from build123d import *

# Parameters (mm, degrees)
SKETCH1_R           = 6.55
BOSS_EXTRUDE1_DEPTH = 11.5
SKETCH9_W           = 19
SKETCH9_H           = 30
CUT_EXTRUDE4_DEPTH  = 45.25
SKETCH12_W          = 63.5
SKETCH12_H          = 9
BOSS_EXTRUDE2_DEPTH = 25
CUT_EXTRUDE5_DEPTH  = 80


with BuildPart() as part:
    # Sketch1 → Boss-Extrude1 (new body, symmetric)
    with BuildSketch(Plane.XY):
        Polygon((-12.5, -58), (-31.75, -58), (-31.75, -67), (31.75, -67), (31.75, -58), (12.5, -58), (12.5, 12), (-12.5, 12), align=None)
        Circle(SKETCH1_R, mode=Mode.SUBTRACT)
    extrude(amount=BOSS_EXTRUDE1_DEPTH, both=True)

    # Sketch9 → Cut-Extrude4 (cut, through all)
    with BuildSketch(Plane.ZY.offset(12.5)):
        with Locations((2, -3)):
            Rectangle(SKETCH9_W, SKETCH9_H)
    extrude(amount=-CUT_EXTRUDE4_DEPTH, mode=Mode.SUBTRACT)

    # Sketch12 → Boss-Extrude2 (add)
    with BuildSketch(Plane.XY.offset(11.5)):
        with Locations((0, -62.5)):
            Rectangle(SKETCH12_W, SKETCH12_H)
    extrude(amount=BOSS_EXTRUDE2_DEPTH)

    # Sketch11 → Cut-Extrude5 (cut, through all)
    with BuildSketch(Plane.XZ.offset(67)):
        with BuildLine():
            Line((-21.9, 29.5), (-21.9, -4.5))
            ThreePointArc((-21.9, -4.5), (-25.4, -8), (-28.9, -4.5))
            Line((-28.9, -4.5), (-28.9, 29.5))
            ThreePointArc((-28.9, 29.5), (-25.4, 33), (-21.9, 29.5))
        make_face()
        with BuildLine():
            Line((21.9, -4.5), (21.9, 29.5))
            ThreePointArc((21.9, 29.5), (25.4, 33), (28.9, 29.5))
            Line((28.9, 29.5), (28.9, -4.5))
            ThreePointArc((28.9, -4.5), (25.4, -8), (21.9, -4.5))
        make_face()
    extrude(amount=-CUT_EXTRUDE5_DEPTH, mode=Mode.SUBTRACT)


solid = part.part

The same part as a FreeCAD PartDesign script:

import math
import FreeCAD as App
import Part
import Sketcher

V = App.Vector

doc = App.newDocument("Part")
body = doc.addObject("PartDesign::Body", "Body")

sketch1 = body.newObject("Sketcher::SketchObject", "Sketch")
sketch1.AttachmentSupport = (doc.getObject("XY_Plane"), [""])
sketch1.MapMode = "FlatFace"
sketch1.addGeometry([
    Part.LineSegment(V(-12, -58, 0), V(-32, -58, 0)),
    Part.LineSegment(V(-32, -58, 0), V(-32, -67, 0)),
    Part.LineSegment(V(-32, -67, 0), V(32, -67, 0)),
    Part.LineSegment(V(32, -67, 0), V(32, -58, 0)),
    Part.LineSegment(V(32, -58, 0), V(12, -58, 0)),
    Part.LineSegment(V(12, -58, 0), V(12, 12, 0)),
    Part.LineSegment(V(12, 12, 0), V(-12, 12, 0)),
    Part.LineSegment(V(-12, 12, 0), V(-12, -58, 0)),
    Part.Circle(V(0, 0, 0), V(0, 0, 1), 7),
], False)
sketch1.addConstraint([
    Sketcher.Constraint("Coincident", 0, 2, 1, 1),
    Sketcher.Constraint("Coincident", 1, 2, 2, 1),
    Sketcher.Constraint("Coincident", 2, 2, 3, 1),
    Sketcher.Constraint("Coincident", 3, 2, 4, 1),
    Sketcher.Constraint("Coincident", 4, 2, 5, 1),
    Sketcher.Constraint("Coincident", 5, 2, 6, 1),
    Sketcher.Constraint("Coincident", 6, 2, 7, 1),
    Sketcher.Constraint("Coincident", 7, 2, 0, 1),
    Sketcher.Constraint("Horizontal", 0),
    Sketcher.Constraint("Vertical", 1),
    Sketcher.Constraint("Horizontal", 2),
    Sketcher.Constraint("Vertical", 3),
    Sketcher.Constraint("Horizontal", 4),
    Sketcher.Constraint("Vertical", 5),
    Sketcher.Constraint("Horizontal", 6),
    Sketcher.Constraint("Vertical", 7),
    Sketcher.Constraint("Coincident", 8, 3, -1, 1),
    Sketcher.Constraint("Symmetric", 0, 2, 3, 2, -2),
    Sketcher.Constraint("Equal", 0, 4),
    Sketcher.Constraint("Diameter", 8, 13.1),
    Sketcher.Constraint("DistanceX", 6, 2, 6, 1, 25.0),
    Sketcher.Constraint("DistanceY", 1, 2, 1, 1, 9.0),
    Sketcher.Constraint("DistanceY", 5, 1, 5, 2, 70.0),
    Sketcher.Constraint("DistanceX", 2, 1, 2, 2, 63.5),
    Sketcher.Constraint("DistanceY", 0, 2, -1, 1, 58.0),
])
pad1 = body.newObject("PartDesign::Pad", "Pad")
pad1.Profile = sketch1
pad1.Length = 23
pad1.Midplane = True

sketch2 = body.newObject("Sketcher::SketchObject", "Sketch001")
sketch2.AttachmentSupport = (doc.getObject("YZ_Plane"), [""])
sketch2.MapMode = "FlatFace"
sketch2.AttachmentOffset = App.Placement(V(0, 0, -12.5), App.Rotation())
sketch2.addGeometry([
    Part.LineSegment(V(12, -8, 0), V(-18, -8, 0)),
    Part.LineSegment(V(-18, -8, 0), V(-18, 12, 0)),
    Part.LineSegment(V(-18, 12, 0), V(12, 12, 0)),
    Part.LineSegment(V(12, 12, 0), V(12, -8, 0)),
], False)
sketch2.addConstraint([
    Sketcher.Constraint("Coincident", 0, 2, 1, 1),
    Sketcher.Constraint("Coincident", 1, 2, 2, 1),
    Sketcher.Constraint("Coincident", 2, 2, 3, 1),
    Sketcher.Constraint("Coincident", 3, 2, 0, 1),
    Sketcher.Constraint("Horizontal", 0),
    Sketcher.Constraint("Vertical", 1),
    Sketcher.Constraint("Horizontal", 2),
    Sketcher.Constraint("Vertical", 3),
    Sketcher.Constraint("DistanceX", 0, 2, 0, 1, 30.0),
    Sketcher.Constraint("DistanceY", 1, 1, 1, 2, 19.0),
    Sketcher.Constraint("DistanceX", 0, 2, -1, 1, 18.0),
    Sketcher.Constraint("DistanceY", 0, 2, -1, 1, 7.5),
])
pocket1 = body.newObject("PartDesign::Pocket", "Pocket")
pocket1.Profile = sketch2
pocket1.Type = "ThroughAll"
pocket1.Reversed = True

sketch3 = body.newObject("Sketcher::SketchObject", "Sketch002")
sketch3.AttachmentSupport = (doc.getObject("XY_Plane"), [""])
sketch3.MapMode = "FlatFace"
sketch3.AttachmentOffset = App.Placement(V(0, 0, 11.5), App.Rotation())
sketch3.addGeometry([
    Part.LineSegment(V(-32, -58, 0), V(-32, -67, 0)),
    Part.LineSegment(V(-32, -67, 0), V(32, -67, 0)),
    Part.LineSegment(V(32, -67, 0), V(32, -58, 0)),
    Part.LineSegment(V(32, -58, 0), V(-32, -58, 0)),
], False)
sketch3.addConstraint([
    Sketcher.Constraint("Coincident", 0, 2, 1, 1),
    Sketcher.Constraint("Coincident", 1, 2, 2, 1),
    Sketcher.Constraint("Coincident", 2, 2, 3, 1),
    Sketcher.Constraint("Coincident", 3, 2, 0, 1),
    Sketcher.Constraint("Vertical", 0),
    Sketcher.Constraint("Horizontal", 1),
    Sketcher.Constraint("Vertical", 2),
    Sketcher.Constraint("Horizontal", 3),
    Sketcher.Constraint("DistanceY", 0, 2, 0, 1, 9.0),
    Sketcher.Constraint("DistanceX", 1, 1, 1, 2, 63.5),
    Sketcher.Constraint("DistanceY", 0, 2, -1, 1, 67.0),
    Sketcher.Constraint("DistanceX", 0, 2, -1, 1, 31.75),
])
pad2 = body.newObject("PartDesign::Pad", "Pad001")
pad2.Profile = sketch3
pad2.Length = 25

sketch4 = body.newObject("Sketcher::SketchObject", "Sketch003")
sketch4.AttachmentSupport = (doc.getObject("XZ_Plane"), [""])
sketch4.MapMode = "FlatFace"
sketch4.AttachmentOffset = App.Placement(V(0, 0, 67), App.Rotation())
sketch4.addGeometry([
    Part.LineSegment(V(-21.9, -4.5, 0), V(-21.9, 29.5, 0)),
    Part.ArcOfCircle(Part.Circle(V(-25.4, 29.5, 0), V(0, 0, 1), 3.5), math.radians(0), math.radians(180)),
    Part.LineSegment(V(-28.9, 29.5, 0), V(-28.9, -4.5, 0)),
    Part.ArcOfCircle(Part.Circle(V(-25.4, -4.5, 0), V(0, 0, 1), 3.5), math.radians(180), math.radians(360)),
    Part.LineSegment(V(21.9, 29.5, 0), V(21.9, -4.5, 0)),
    Part.ArcOfCircle(Part.Circle(V(25.4, -4.5, 0), V(0, 0, 1), 3.5), math.radians(180), math.radians(360)),
    Part.LineSegment(V(28.9, -4.5, 0), V(28.9, 29.5, 0)),
    Part.ArcOfCircle(Part.Circle(V(25.4, 29.5, 0), V(0, 0, 1), 3.5), math.radians(0), math.radians(180)),
], False)
sketch4.addConstraint([
    Sketcher.Constraint("Tangent", 0, 2, 1, 1),
    Sketcher.Constraint("Tangent", 1, 2, 2, 1),
    Sketcher.Constraint("Tangent", 2, 2, 3, 1),
    Sketcher.Constraint("Tangent", 3, 2, 0, 1),
    Sketcher.Constraint("Tangent", 4, 2, 5, 1),
    Sketcher.Constraint("Tangent", 5, 2, 6, 1),
    Sketcher.Constraint("Tangent", 6, 2, 7, 1),
    Sketcher.Constraint("Tangent", 7, 2, 4, 1),
    Sketcher.Constraint("Vertical", 0),
    Sketcher.Constraint("Vertical", 2),
    Sketcher.Constraint("Vertical", 4),
    Sketcher.Constraint("Vertical", 6),
    Sketcher.Constraint("Equal", 3, 5),
    Sketcher.Constraint("Symmetric", 3, 3, 5, 3, -2),
    Sketcher.Constraint("Horizontal", 1, 3, 7, 3),
    Sketcher.Constraint("Radius", 1, 3.5),
    Sketcher.Constraint("DistanceY", 0, 1, 0, 2, 34.0),
    Sketcher.Constraint("DistanceX", 1, 3, -1, 1, 25.4),
    Sketcher.Constraint("DistanceY", -1, 1, 1, 3, 29.5),
])
pocket2 = body.newObject("PartDesign::Pocket", "Pocket001")
pocket2.Profile = sketch4
pocket2.Type = "ThroughAll"

doc.recompute()
